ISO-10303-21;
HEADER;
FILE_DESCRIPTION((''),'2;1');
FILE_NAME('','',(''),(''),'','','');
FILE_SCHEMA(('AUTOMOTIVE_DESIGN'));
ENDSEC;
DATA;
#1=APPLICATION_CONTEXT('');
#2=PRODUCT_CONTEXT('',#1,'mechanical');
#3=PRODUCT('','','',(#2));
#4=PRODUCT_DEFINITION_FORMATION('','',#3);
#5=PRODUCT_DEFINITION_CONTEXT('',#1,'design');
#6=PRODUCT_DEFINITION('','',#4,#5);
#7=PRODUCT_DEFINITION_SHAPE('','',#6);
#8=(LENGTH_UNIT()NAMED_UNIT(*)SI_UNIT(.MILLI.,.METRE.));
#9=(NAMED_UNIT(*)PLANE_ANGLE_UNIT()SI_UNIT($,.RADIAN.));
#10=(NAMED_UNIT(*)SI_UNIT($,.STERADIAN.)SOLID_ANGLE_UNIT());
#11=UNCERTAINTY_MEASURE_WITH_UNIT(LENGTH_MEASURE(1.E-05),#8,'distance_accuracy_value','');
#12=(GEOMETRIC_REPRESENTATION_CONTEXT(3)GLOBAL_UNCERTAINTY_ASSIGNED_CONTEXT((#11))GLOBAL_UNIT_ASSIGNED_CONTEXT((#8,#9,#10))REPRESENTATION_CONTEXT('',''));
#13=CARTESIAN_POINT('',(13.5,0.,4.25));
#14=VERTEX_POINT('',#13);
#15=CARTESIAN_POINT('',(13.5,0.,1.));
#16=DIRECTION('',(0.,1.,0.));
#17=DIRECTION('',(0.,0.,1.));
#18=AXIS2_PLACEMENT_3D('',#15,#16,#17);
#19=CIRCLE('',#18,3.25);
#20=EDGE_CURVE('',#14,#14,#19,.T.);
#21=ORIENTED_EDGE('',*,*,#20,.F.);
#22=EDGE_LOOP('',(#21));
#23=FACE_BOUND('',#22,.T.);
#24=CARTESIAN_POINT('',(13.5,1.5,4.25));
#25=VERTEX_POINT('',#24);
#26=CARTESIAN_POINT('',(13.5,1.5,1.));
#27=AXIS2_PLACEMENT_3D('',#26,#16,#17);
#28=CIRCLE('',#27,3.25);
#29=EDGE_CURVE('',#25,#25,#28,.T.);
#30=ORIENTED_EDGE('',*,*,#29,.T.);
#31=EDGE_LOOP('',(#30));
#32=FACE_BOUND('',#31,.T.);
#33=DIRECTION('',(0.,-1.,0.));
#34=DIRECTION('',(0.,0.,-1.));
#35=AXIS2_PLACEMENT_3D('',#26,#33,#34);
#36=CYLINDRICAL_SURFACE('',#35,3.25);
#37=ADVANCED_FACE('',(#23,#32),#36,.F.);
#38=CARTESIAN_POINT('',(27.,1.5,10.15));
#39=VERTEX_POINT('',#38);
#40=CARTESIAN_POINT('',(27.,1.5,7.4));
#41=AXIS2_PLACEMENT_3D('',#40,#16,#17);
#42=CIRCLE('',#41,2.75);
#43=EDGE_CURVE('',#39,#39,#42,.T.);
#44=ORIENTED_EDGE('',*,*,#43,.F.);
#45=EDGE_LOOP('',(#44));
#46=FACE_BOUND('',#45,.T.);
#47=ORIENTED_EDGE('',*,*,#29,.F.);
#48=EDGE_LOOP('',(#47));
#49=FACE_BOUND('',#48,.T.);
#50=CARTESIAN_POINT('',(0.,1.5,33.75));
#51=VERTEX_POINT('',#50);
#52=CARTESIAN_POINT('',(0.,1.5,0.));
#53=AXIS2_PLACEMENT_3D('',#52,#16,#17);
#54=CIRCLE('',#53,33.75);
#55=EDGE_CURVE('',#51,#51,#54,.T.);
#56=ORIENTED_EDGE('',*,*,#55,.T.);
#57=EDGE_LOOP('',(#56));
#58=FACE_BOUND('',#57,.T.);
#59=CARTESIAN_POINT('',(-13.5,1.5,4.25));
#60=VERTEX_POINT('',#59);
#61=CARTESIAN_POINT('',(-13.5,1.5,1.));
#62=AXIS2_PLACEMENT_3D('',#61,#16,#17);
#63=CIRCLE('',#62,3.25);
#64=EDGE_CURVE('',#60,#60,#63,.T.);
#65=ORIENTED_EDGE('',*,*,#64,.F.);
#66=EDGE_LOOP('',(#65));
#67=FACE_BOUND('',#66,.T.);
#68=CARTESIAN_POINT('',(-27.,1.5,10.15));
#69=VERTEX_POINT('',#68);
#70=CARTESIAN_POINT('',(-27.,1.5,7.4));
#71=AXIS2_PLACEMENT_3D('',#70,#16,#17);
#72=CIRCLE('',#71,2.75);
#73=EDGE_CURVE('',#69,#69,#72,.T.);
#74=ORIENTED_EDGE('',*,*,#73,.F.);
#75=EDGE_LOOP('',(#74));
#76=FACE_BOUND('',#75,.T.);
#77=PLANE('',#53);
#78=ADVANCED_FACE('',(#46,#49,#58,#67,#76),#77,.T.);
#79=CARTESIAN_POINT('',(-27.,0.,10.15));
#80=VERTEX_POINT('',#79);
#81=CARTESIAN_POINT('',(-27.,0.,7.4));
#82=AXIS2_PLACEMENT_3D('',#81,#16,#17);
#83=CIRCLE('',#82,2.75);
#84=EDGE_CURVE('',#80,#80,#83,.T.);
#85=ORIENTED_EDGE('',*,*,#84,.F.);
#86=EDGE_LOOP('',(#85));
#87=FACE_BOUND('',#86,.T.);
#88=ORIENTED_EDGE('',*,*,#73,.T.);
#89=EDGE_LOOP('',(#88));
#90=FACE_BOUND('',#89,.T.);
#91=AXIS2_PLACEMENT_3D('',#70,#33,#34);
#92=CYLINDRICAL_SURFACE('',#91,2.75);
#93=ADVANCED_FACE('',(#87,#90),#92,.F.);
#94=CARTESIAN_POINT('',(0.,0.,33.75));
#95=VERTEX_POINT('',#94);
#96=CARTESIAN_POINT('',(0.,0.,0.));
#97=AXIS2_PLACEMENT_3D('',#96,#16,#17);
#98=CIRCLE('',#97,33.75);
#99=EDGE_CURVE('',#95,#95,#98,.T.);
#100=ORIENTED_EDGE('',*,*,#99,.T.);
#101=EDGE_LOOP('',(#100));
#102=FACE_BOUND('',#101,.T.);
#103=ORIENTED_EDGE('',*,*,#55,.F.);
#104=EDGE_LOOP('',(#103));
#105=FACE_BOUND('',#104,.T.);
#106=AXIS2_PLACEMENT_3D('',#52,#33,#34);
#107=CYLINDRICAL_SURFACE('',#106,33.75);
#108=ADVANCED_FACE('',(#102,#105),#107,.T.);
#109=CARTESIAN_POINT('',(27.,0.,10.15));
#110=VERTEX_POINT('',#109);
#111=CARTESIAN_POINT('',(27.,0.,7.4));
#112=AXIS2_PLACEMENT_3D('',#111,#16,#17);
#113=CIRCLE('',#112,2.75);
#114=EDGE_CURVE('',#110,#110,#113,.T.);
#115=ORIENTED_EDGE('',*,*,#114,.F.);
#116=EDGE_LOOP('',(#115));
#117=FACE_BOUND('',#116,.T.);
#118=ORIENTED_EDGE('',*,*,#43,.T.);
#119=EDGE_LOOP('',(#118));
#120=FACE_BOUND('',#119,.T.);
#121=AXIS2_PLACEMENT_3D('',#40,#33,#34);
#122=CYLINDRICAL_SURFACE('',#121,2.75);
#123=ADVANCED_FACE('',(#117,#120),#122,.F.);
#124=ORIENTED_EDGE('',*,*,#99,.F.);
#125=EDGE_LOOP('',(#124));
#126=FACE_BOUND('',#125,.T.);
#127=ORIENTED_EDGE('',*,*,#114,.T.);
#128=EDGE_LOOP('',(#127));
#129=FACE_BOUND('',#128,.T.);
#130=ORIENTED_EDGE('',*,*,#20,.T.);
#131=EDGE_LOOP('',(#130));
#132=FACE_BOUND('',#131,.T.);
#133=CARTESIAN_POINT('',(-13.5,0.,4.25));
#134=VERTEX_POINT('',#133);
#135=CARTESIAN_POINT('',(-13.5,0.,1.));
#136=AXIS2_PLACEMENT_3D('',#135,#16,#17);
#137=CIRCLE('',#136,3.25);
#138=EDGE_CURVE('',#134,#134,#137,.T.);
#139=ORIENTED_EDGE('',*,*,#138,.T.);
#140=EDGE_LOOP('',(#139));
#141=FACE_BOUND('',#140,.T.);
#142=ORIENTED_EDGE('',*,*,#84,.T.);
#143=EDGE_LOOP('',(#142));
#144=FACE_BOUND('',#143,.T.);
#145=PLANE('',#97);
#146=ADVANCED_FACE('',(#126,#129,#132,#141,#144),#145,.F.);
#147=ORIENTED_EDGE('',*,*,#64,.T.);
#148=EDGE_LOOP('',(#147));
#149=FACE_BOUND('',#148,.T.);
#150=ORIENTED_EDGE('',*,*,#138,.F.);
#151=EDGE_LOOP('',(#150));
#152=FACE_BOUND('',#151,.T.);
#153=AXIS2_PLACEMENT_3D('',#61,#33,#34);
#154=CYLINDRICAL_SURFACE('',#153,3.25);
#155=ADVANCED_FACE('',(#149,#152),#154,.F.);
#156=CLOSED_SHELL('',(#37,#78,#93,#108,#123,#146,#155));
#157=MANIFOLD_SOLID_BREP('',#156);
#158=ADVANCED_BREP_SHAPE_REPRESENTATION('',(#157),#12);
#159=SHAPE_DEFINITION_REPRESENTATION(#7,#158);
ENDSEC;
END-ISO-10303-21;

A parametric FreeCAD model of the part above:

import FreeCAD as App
import Part
import Sketcher
from FreeCAD import Vector
Q = App.Units.Quantity

doc = App.newDocument("Part")
body = doc.addObject("PartDesign::Body", "Body")

# Sketch on XZ plane
sketch1 = body.newObject("Sketcher::SketchObject", "Sketch")
sketch1.AttachmentSupport = (doc.getObject("XZ_Plane"), [""])
sketch1.MapMode = "FlatFace"
sketch1.addGeometry(Part.Circle(Vector(0, 0, 0), Vector(0, 0, 1), 33.75), False)
sketch1.addGeometry(Part.Circle(Vector(-13.5, 1, 0), Vector(0, 0, 1), 3.25), False)
sketch1.addGeometry(Part.Circle(Vector(-27, 7.4, 0), Vector(0, 0, 1), 2.75), False)
sketch1.addGeometry(Part.Circle(Vector(13.5, 1, 0), Vector(0, 0, 1), 3.25), False)
sketch1.addGeometry(Part.Circle(Vector(27, 7.4, 0), Vector(0, 0, 1), 2.75), False)
sketch1.addConstraint(Sketcher.Constraint("Coincident", 0, 3, -1, 1))
sketch1.addConstraint(Sketcher.Constraint("Equal", 1, 3))
sketch1.addConstraint(Sketcher.Constraint("Equal", 2, 4))
sketch1.addConstraint(Sketcher.Constraint("Symmetric", 1, 3, 3, 3, -2))
sketch1.addConstraint(Sketcher.Constraint("Symmetric", 2, 3, 4, 3, -2))
sketch1.addConstraint(Sketcher.Constraint("Diameter", 0, Q("67.5 mm")))
sketch1.addConstraint(Sketcher.Constraint("Diameter", 1, Q("6.5 mm")))
sketch1.addConstraint(Sketcher.Constraint("Diameter", 2, Q("5.5 mm")))
sketch1.addConstraint(Sketcher.Constraint("DistanceY", -1, 1, 1, 3, Q("1 mm")))
sketch1.addConstraint(Sketcher.Constraint("DistanceX", 2, 3, -1, 1, Q("27 mm")))
sketch1.addConstraint(Sketcher.Constraint("DistanceX", 1, 3, 3, 3, Q("27 mm")))
sketch1.addConstraint(Sketcher.Constraint("DistanceY", -1, 1, 2, 3, Q("7.4 mm")))
pad1 = body.newObject("PartDesign::Pad", "Pad")
pad1.Profile = sketch1
pad1.Length = 1.5
pad1.Reversed = True

doc.recompute()
